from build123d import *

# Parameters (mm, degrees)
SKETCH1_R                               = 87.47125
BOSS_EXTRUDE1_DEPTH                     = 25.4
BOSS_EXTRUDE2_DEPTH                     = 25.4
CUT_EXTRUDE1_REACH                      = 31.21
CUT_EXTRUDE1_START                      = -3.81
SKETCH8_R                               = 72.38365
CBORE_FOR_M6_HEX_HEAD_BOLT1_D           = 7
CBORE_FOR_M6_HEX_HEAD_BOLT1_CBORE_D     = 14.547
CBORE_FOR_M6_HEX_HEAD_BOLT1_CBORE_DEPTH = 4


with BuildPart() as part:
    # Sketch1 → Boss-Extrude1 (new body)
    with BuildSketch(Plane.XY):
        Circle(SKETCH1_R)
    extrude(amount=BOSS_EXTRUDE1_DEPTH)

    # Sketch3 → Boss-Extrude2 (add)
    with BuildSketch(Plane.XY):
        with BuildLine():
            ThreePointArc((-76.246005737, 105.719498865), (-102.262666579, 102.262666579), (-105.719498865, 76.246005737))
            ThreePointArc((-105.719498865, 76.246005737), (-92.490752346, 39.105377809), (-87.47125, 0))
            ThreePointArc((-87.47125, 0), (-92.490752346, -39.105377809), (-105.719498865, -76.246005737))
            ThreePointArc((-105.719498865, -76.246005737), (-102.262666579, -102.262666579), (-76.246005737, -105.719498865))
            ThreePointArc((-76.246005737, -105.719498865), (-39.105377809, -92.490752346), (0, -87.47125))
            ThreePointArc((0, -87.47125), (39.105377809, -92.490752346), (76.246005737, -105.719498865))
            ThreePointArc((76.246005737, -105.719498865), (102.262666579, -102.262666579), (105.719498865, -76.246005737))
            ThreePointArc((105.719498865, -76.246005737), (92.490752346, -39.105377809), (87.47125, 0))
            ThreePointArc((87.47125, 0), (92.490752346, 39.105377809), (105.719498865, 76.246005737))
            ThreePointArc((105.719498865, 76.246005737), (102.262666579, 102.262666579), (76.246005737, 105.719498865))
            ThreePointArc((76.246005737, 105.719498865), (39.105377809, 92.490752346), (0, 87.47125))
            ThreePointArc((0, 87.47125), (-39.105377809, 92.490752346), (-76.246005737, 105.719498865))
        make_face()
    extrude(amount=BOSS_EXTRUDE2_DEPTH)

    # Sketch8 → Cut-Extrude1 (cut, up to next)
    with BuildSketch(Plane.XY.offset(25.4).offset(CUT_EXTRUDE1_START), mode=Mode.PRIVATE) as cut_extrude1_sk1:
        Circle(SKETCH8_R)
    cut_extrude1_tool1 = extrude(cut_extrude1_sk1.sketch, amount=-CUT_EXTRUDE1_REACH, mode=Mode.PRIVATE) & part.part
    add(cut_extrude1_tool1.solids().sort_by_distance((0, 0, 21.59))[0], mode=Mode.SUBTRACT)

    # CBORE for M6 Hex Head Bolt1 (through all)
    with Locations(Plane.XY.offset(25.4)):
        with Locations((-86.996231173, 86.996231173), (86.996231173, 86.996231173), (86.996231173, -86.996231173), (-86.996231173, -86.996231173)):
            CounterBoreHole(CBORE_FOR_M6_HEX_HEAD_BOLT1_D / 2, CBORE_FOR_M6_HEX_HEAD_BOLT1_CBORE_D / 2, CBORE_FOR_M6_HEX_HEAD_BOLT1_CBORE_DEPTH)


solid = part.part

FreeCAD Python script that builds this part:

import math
import FreeCAD as App
import Part
import Sketcher

V = App.Vector
Q = App.Units.Quantity

doc = App.newDocument("Part")
params = doc.addObject("Spreadsheet::Sheet", "Params")
for row, (alias, value) in enumerate([
    ("pad1_length", "1 in"),
    ("sketch2_radius", "0.85 in"),
    ("sketch2_radius2", "7.25 in"),
    ("pad2_length", "1 in"),
    ("hole_diameter", "7 mm"),
    ("hole_cbore_diameter", "14.547 mm"),
    ("hole_cbore_depth", "4 mm"),
], start=1):
    params.set(f"A{row}", alias)
    params.set(f"B{row}", "=" + value)
    params.setAlias(f"B{row}", alias)

body = doc.addObject("PartDesign::Body", "Body")

# Sketch on XY plane
sketch1 = body.newObject("Sketcher::SketchObject", "Sketch")
sketch1.AttachmentSupport = (doc.getObject("XY_Plane"), [""])
sketch1.MapMode = "FlatFace"
sketch1.addGeometry(Part.Circle(V(0, 0, 0), V(0, 0, 1), 87.47125), False)
sketch1.addConstraint([
    Sketcher.Constraint("Coincident", 0, 3, -1, 1),
    Sketcher.Constraint("Diameter", 0, Q("6.8875 in")),
])
pad1 = body.newObject("PartDesign::Pad", "Pad")
pad1.Profile = sketch1
pad1.setExpression("Length", "Params.pad1_length")

# Sketch on XY plane
sketch2 = body.newObject("Sketcher::SketchObject", "Sketch001")
sketch2.AttachmentSupport = (doc.getObject("XY_Plane"), [""])
sketch2.MapMode = "FlatFace"
sketch2.addGeometry([
    Part.ArcOfCircle(Part.Circle(V(-86.996231, 86.996231, 0), V(0, 0, 1), 21.59), math.radians(60.137111), math.radians(209.862889)),  # 0
    Part.ArcOfCircle(Part.Circle(V(-271.582912, -3.757435, 0), V(0, 0, 1), 184.15), math.radians(1.169156), math.radians(25.75012)),  # 1
    Part.ArcOfCircle(Part.Circle(V(-271.582912, 3.757435, 0), V(0, 0, 1), 184.15), math.radians(-25.75012), math.radians(-1.169156)),  # 2
    Part.ArcOfCircle(Part.Circle(V(-86.996231, -86.996231, 0), V(0, 0, 1), 21.59), math.radians(150.137111), math.radians(299.862889)),  # 3
    Part.ArcOfCircle(Part.Circle(V(3.757435, -271.582912, 0), V(0, 0, 1), 184.15), math.radians(91.169156), math.radians(115.75012)),  # 4
    Part.ArcOfCircle(Part.Circle(V(-3.757435, -271.582912, 0), V(0, 0, 1), 184.15), math.radians(64.24988), math.radians(88.830844)),  # 5
    Part.ArcOfCircle(Part.Circle(V(86.996231, -86.996231, 0), V(0, 0, 1), 21.59), math.radians(-119.862889), math.radians(29.862889)),  # 6
    Part.ArcOfCircle(Part.Circle(V(271.582912, 3.757435, 0), V(0, 0, 1), 184.15), math.radians(-178.830844), math.radians(-154.24988)),  # 7
    Part.ArcOfCircle(Part.Circle(V(271.582912, -3.757435, 0), V(0, 0, 1), 184.15), math.radians(154.24988), math.radians(178.830844)),  # 8
    Part.ArcOfCircle(Part.Circle(V(86.996231, 86.996231, 0), V(0, 0, 1), 21.59), math.radians(-29.862889), math.radians(119.862889)),  # 9
    Part.ArcOfCircle(Part.Circle(V(-3.757435, 271.582912, 0), V(0, 0, 1), 184.15), math.radians(-88.830844), math.radians(-64.24988)),  # 10
    Part.ArcOfCircle(Part.Circle(V(3.757435, 271.582912, 0), V(0, 0, 1), 184.15), math.radians(-115.75012), math.radians(-91.169156)),  # 11
], False)
sketch2.addConstraint([
    Sketcher.Constraint("Coincident", 0, 2, 1, 2),
    Sketcher.Constraint("Coincident", 1, 1, 2, 2),
    Sketcher.Constraint("Coincident", 2, 1, 3, 1),
    Sketcher.Constraint("Coincident", 3, 2, 4, 2),
    Sketcher.Constraint("Coincident", 4, 1, 5, 2),
    Sketcher.Constraint("Coincident", 5, 1, 6, 1),
    Sketcher.Constraint("Coincident", 6, 2, 7, 2),
    Sketcher.Constraint("Coincident", 7, 1, 8, 2),
    Sketcher.Constraint("Coincident", 8, 1, 9, 1),
    Sketcher.Constraint("Coincident", 9, 2, 10, 2),
    Sketcher.Constraint("Coincident", 10, 1, 11, 2),
    Sketcher.Constraint("Coincident", 11, 1, 0, 1),
    Sketcher.Constraint("Equal", 1, 2),
    Sketcher.Constraint("Equal", 0, 3),
    Sketcher.Constraint("Equal", 2, 4),
    Sketcher.Constraint("Equal", 4, 5),
    Sketcher.Constraint("Equal", 3, 6),
    Sketcher.Constraint("Equal", 5, 7),
    Sketcher.Constraint("Equal", 7, 8),
    Sketcher.Constraint("Equal", 6, 9),
    Sketcher.Constraint("Equal", 8, 10),
    Sketcher.Constraint("Equal", 10, 11),
    Sketcher.Constraint("Symmetric", 0, 3, 6, 3, -1, 1),
    Sketcher.Constraint("Symmetric", 1, 3, 7, 3, -1, 1),
    Sketcher.Constraint("Symmetric", 2, 3, 8, 3, -1, 1),
    Sketcher.Constraint("Symmetric", 3, 3, 9, 3, -1, 1),
    Sketcher.Constraint("Symmetric", 4, 3, 10, 3, -1, 1),
    Sketcher.Constraint("Symmetric", 5, 3, 11, 3, -1, 1),
    Sketcher.Constraint("Symmetric", 4, 3, 5, 3, -2),
    Sketcher.Constraint("Symmetric", 3, 3, 6, 3, -2),
    Sketcher.Constraint("Symmetric", 2, 3, 7, 3, -2),
    Sketcher.Constraint("Radius", 0, Q("0.85 in")),
    Sketcher.Constraint("Radius", 1, Q("7.25 in")),
    Sketcher.Constraint("DistanceX", 0, 2, -1, 1, 105.719499),
    Sketcher.Constraint("DistanceY", 3, 2, -1, 1, 105.719499),
    Sketcher.Constraint("DistanceX", 0, 3, -1, 1, 86.996231),
    Sketcher.Constraint("DistanceY", -1, 1, 0, 3, 86.996231),
    Sketcher.Constraint("DistanceX", 1, 1, -1, 1, 87.47125),
    Sketcher.Constraint("DistanceY", 4, 1, -1, 1, 87.47125),
])
sketch2.setExpression("Constraints[31]", "Params.sketch2_radius")
sketch2.setExpression("Constraints[32]", "Params.sketch2_radius2")
pad2 = body.newObject("PartDesign::Pad", "Pad001")
pad2.Profile = sketch2
pad2.setExpression("Length", "Params.pad2_length")

# Sketch on XY plane
sketch3 = body.newObject("Sketcher::SketchObject", "Sketch002")
sketch3.AttachmentSupport = (doc.getObject("XY_Plane"), [""])
sketch3.MapMode = "FlatFace"
sketch3.AttachmentOffset = App.Placement(V(0, 0, 0.85 * 25.4), App.Rotation())
sketch3.addGeometry(Part.Circle(V(0, 0, 0), V(0, 0, 1), 72.38365), False)
sketch3.addConstraint([
    Sketcher.Constraint("Coincident", 0, 3, -1, 1),
    Sketcher.Constraint("Diameter", 0, Q("5.6995 in")),
])
pocket1 = body.newObject("PartDesign::Pocket", "Pocket")
pocket1.Profile = sketch3
pocket1.Type = "UpToFirst"

# Sketch on XY plane
sketch4 = body.newObject("Sketcher::SketchObject", "Sketch003")
sketch4.AttachmentSupport = (doc.getObject("XY_Plane"), [""])
sketch4.MapMode = "FlatFace"
sketch4.AttachmentOffset = App.Placement(V(0, 0, 1 * 25.4), App.Rotation())
sketch4.addGeometry([
    Part.Circle(V(-86.996231, 86.996231, 0), V(0, 0, 1), 3.5),
    Part.Circle(V(86.996231, 86.996231, 0), V(0, 0, 1), 3.5),
    Part.Circle(V(86.996231, -86.996231, 0), V(0, 0, 1), 3.5),
    Part.Circle(V(-86.996231, -86.996231, 0), V(0, 0, 1), 3.5),
], False)
sketch4.addConstraint([
    Sketcher.Constraint("Equal", 0, 1),
    Sketcher.Constraint("Equal", 1, 2),
    Sketcher.Constraint("Equal", 2, 3),
    Sketcher.Constraint("Symmetric", 0, 3, 2, 3, -1, 1),
    Sketcher.Constraint("Symmetric", 1, 3, 3, 3, -1, 1),
    Sketcher.Constraint("Symmetric", 0, 3, 1, 3, -2),
    Sketcher.Constraint("Diameter", 0, 7.0),
    Sketcher.Constraint("DistanceX", 0, 3, -1, 1, 86.996231),
    Sketcher.Constraint("DistanceY", -1, 1, 0, 3, 86.996231),
])
doc.recompute()
hole = body.newObject("PartDesign::Hole", "Hole")
hole.Profile = sketch4
hole.ThreadType = "None"
hole.setExpression("Diameter", "Params.hole_diameter")
hole.DepthType = "ThroughAll"
hole.HoleCutType = "Counterbore"
hole.setExpression("HoleCutDiameter", "Params.hole_cbore_diameter")
hole.setExpression("HoleCutDepth", "Params.hole_cbore_depth")

doc.recompute()
